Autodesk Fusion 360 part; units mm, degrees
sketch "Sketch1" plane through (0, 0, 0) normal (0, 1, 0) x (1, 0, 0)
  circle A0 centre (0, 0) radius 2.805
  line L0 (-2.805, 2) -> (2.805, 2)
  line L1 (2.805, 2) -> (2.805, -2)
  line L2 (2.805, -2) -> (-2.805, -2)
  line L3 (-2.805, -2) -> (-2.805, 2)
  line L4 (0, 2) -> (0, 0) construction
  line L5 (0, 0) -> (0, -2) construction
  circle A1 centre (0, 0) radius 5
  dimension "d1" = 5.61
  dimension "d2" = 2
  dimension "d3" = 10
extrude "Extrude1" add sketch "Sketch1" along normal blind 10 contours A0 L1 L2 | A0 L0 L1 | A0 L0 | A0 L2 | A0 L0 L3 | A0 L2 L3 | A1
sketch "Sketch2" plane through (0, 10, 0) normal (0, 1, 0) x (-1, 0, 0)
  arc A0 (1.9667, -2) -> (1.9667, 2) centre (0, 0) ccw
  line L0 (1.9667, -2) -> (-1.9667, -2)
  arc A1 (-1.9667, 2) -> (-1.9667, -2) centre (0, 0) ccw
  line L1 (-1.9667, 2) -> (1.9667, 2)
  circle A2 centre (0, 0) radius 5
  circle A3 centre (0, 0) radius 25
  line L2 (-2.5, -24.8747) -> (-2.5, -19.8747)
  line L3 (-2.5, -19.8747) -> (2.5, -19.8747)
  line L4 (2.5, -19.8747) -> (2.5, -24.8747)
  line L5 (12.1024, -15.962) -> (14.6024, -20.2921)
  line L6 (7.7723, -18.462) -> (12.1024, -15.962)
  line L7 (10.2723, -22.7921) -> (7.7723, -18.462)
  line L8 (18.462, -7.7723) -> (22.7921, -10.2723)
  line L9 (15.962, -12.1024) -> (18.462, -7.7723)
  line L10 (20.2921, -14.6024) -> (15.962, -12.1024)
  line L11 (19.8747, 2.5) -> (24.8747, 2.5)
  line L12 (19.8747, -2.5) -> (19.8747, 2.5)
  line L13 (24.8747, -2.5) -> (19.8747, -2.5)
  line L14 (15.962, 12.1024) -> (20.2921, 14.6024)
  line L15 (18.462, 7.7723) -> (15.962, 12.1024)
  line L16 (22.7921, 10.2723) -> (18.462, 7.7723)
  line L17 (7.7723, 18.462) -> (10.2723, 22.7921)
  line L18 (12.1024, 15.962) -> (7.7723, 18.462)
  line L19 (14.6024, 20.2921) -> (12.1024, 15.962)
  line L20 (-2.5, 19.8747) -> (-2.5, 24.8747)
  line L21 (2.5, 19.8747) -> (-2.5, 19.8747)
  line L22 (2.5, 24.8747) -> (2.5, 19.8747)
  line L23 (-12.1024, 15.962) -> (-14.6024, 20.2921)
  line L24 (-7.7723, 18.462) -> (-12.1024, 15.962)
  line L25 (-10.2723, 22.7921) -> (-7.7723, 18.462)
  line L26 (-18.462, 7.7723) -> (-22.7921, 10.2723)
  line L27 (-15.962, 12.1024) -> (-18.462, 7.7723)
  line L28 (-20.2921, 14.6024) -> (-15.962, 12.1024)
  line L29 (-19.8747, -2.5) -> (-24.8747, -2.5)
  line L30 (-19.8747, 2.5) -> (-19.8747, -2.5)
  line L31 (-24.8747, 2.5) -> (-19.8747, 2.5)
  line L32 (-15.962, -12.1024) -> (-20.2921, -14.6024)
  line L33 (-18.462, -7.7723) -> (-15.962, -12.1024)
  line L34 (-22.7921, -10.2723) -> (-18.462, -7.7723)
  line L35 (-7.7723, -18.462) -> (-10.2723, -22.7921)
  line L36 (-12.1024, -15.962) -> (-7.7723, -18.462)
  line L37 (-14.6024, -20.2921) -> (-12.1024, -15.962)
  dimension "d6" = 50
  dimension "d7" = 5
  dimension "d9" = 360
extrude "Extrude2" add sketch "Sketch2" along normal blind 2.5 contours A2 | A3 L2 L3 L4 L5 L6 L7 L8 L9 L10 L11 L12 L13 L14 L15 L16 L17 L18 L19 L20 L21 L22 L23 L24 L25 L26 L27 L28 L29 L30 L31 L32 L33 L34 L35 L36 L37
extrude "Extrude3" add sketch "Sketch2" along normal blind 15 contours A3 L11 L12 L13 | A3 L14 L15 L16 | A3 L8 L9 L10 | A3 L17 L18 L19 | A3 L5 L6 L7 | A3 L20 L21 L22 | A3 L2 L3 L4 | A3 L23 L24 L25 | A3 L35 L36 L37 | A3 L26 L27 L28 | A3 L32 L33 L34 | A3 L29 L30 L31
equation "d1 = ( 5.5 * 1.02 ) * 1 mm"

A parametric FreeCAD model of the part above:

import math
import FreeCAD as App
import Part
import Sketcher
Q = App.Units.Quantity

doc = App.newDocument("Part")
body = doc.addObject("PartDesign::Body", "Body")

# Sketch on XZ plane
sketch1 = body.newObject("Sketcher::SketchObject", "Sketch")
sketch1.AttachmentSupport = (doc.getObject("XZ_Plane"), [""])
sketch1.MapMode = "FlatFace"
sketch1.addGeometry([
    Part.Circle(App.Vector(0, 0, 0), App.Vector(0, 0, 1), 5),  # 0
    Part.LineSegment(App.Vector(2, 2, 0), App.Vector(-2, 2, 0)),  # 1
    Part.ArcOfCircle(Part.Circle(App.Vector(0, 0, 0), App.Vector(0, 0, 1), 2.8), math.radians(135), math.radians(225)),  # 2
    Part.LineSegment(App.Vector(-2, -2, 0), App.Vector(2, -2, 0)),  # 3
    Part.ArcOfCircle(Part.Circle(App.Vector(0, 0, 0), App.Vector(0, 0, 1), 2.8), math.radians(-45), math.radians(45)),  # 4
], False)
sketch1.addConstraint([
    Sketcher.Constraint("Coincident", 1, 2, 2, 1),
    Sketcher.Constraint("Coincident", 2, 2, 3, 1),
    Sketcher.Constraint("Coincident", 3, 2, 4, 1),
    Sketcher.Constraint("Coincident", 4, 2, 1, 1),
    Sketcher.Constraint("Horizontal", 1),
    Sketcher.Constraint("Horizontal", 3),
    Sketcher.Constraint("Coincident", 0, 3, -1, 1),
    Sketcher.Constraint("Coincident", 2, 3, -1, 1),
    Sketcher.Constraint("Coincident", 4, 3, -1, 1),
    Sketcher.Constraint("Equal", 2, 4),
    Sketcher.Constraint("Vertical", 1, 2, 2, 2),
    Sketcher.Constraint("Diameter", 0, Q("10 mm")),
    Sketcher.Constraint("DistanceY", -1, 1, 1, 2, Q("2 mm")),
    Sketcher.Constraint("Radius", 2, Q("2.805 mm")),
])
pad1 = body.newObject("PartDesign::Pad", "Pad")
pad1.Profile = sketch1
pad1.Length = 10
pad1.Reversed = True

# Sketch on XZ plane
sketch2 = body.newObject("Sketcher::SketchObject", "Sketch001")
sketch2.AttachmentSupport = (doc.getObject("XZ_Plane"), [""])
sketch2.MapMode = "FlatFace"
sketch2.AttachmentOffset = App.Placement(App.Vector(0, 0, -10), App.Rotation())
sketch2.addGeometry([
    Part.LineSegment(App.Vector(-19.9, 2.5, 0), App.Vector(-24.9, 2.5, 0)),  # 0
    Part.ArcOfCircle(Part.Circle(App.Vector(0, 0, 0), App.Vector(0, 0, 1), 25), math.radians(155.74), math.radians(174.26)),  # 1
    Part.LineSegment(App.Vector(-22.8, 10.3, 0), App.Vector(-18.5, 7.8, 0)),  # 2
    Part.LineSegment(App.Vector(-18.5, 7.8, 0), App.Vector(-16, 12.1, 0)),  # 3
    Part.LineSegment(App.Vector(-16, 12.1, 0), App.Vector(-20.3, 14.6, 0)),  # 4
    Part.ArcOfCircle(Part.Circle(App.Vector(0, 0, 0), App.Vector(0, 0, 1), 25), math.radians(125.74), math.radians(144.26)),  # 5
    Part.LineSegment(App.Vector(-14.6, 20.3, 0), App.Vector(-12.1, 16, 0)),  # 6
    Part.LineSegment(App.Vector(-12.1, 16, 0), App.Vector(-7.8, 18.5, 0)),  # 7
    Part.LineSegment(App.Vector(-7.8, 18.5, 0), App.Vector(-10.3, 22.8, 0)),  # 8
    Part.ArcOfCircle(Part.Circle(App.Vector(0, 0, 0), App.Vector(0, 0, 1), 25), math.radians(95.74), math.radians(114.26)),  # 9
    Part.LineSegment(App.Vector(-2.5, 24.9, 0), App.Vector(-2.5, 19.9, 0)),  # 10
    Part.LineSegment(App.Vector(-2.5, 19.9, 0), App.Vector(2.5, 19.9, 0)),  # 11
    Part.LineSegment(App.Vector(2.5, 19.9, 0), App.Vector(2.5, 24.9, 0)),  # 12
    Part.ArcOfCircle(Part.Circle(App.Vector(0, 0, 0), App.Vector(0, 0, 1), 25), math.radians(65.74), math.radians(84.26)),  # 13
    Part.LineSegment(App.Vector(10.3, 22.8, 0), App.Vector(7.8, 18.5, 0)),  # 14
    Part.LineSegment(App.Vector(7.8, 18.5, 0), App.Vector(12.1, 16, 0)),  # 15
    Part.LineSegment(App.Vector(12.1, 16, 0), App.Vector(14.6, 20.3, 0)),  # 16
    Part.ArcOfCircle(Part.Circle(App.Vector(0, 0, 0), App.Vector(0, 0, 1), 25), math.radians(35.74), math.radians(54.26)),  # 17
    Part.LineSegment(App.Vector(20.3, 14.6, 0), App.Vector(16, 12.1, 0)),  # 18
    Part.LineSegment(App.Vector(16, 12.1, 0), App.Vector(18.5, 7.8, 0)),  # 19
    Part.LineSegment(App.Vector(18.5, 7.8, 0), App.Vector(22.8, 10.3, 0)),  # 20
    Part.ArcOfCircle(Part.Circle(App.Vector(0, 0, 0), App.Vector(0, 0, 1), 25), math.radians(5.74), math.radians(24.26)),  # 21
    Part.LineSegment(App.Vector(24.9, 2.5, 0), App.Vector(19.9, 2.5, 0)),  # 22
    Part.LineSegment(App.Vector(19.9, 2.5, 0), App.Vector(19.9, -2.5, 0)),  # 23
    Part.LineSegment(App.Vector(19.9, -2.5, 0), App.Vector(24.9, -2.5, 0)),  # 24
    Part.ArcOfCircle(Part.Circle(App.Vector(0, 0, 0), App.Vector(0, 0, 1), 25), math.radians(-24.26), math.radians(-5.74)),  # 25
    Part.LineSegment(App.Vector(22.8, -10.3, 0), App.Vector(18.5, -7.8, 0)),  # 26
    Part.LineSegment(App.Vector(18.5, -7.8, 0), App.Vector(16, -12.1, 0)),  # 27
    Part.LineSegment(App.Vector(16, -12.1, 0), App.Vector(20.3, -14.6, 0)),  # 28
    Part.ArcOfCircle(Part.Circle(App.Vector(0, 0, 0), App.Vector(0, 0, 1), 25), math.radians(-54.26), math.radians(-35.74)),  # 29
    Part.LineSegment(App.Vector(14.6, -20.3, 0), App.Vector(12.1, -16, 0)),  # 30
    Part.LineSegment(App.Vector(12.1, -16, 0), App.Vector(7.8, -18.5, 0)),  # 31
    Part.LineSegment(App.Vector(7.8, -18.5, 0), App.Vector(10.3, -22.8, 0)),  # 32
    Part.ArcOfCircle(Part.Circle(App.Vector(0, 0, 0), App.Vector(0, 0, 1), 25), math.radians(-84.26), math.radians(-65.74)),  # 33
    Part.LineSegment(App.Vector(2.5, -24.9, 0), App.Vector(2.5, -19.9, 0)),  # 34
    Part.LineSegment(App.Vector(2.5, -19.9, 0), App.Vector(-2.5, -19.9, 0)),  # 35
    Part.LineSegment(App.Vector(-2.5, -19.9, 0), App.Vector(-2.5, -24.9, 0)),  # 36
    Part.ArcOfCircle(Part.Circle(App.Vector(0, 0, 0), App.Vector(0, 0, 1), 25), math.radians(-114.26), math.radians(-95.74)),  # 37
    Part.LineSegment(App.Vector(-10.3, -22.8, 0), App.Vector(-7.8, -18.5, 0)),  # 38
    Part.LineSegment(App.Vector(-7.8, -18.5, 0), App.Vector(-12.1, -16, 0)),  # 39
    Part.LineSegment(App.Vector(-12.1, -16, 0), App.Vector(-14.6, -20.3, 0)),  # 40
    Part.ArcOfCircle(Part.Circle(App.Vector(0, 0, 0), App.Vector(0, 0, 1), 25), math.radians(-144.26), math.radians(-125.74)),  # 41
    Part.LineSegment(App.Vector(-20.3, -14.6, 0), App.Vector(-16, -12.1, 0)),  # 42
    Part.LineSegment(App.Vector(-16, -12.1, 0), App.Vector(-18.5, -7.8, 0)),  # 43
    Part.LineSegment(App.Vector(-18.5, -7.8, 0), App.Vector(-22.8, -10.3, 0)),  # 44
    Part.ArcOfCircle(Part.Circle(App.Vector(0, 0, 0), App.Vector(0, 0, 1), 25), math.radians(-174.26), math.radians(-155.74)),  # 45
    Part.LineSegment(App.Vector(-24.9, -2.5, 0), App.Vector(-19.9, -2.5, 0)),  # 46
    Part.LineSegment(App.Vector(-19.9, -2.5, 0), App.Vector(-19.9, 2.5, 0)),  # 47
    Part.ArcOfCircle(Part.Circle(App.Vector(0, 0, 0), App.Vector(0, 0, 1), 2.8), math.radians(135), math.radians(225)),  # 48
    Part.LineSegment(App.Vector(-2, -2, 0), App.Vector(2, -2, 0)),  # 49
    Part.ArcOfCircle(Part.Circle(App.Vector(0, 0, 0), App.Vector(0, 0, 1), 2.8), math.radians(-45), math.radians(45)),  # 50
    Part.LineSegment(App.Vector(2, 2, 0), App.Vector(-2, 2, 0)),  # 51
], False)
sketch2.addConstraint([
    Sketcher.Constraint("Coincident", 0, 2, 1, 2),
    Sketcher.Constraint("Coincident", 1, 1, 2, 1),
    Sketcher.Constraint("Coincident", 2, 2, 3, 1),
    Sketcher.Constraint("Coincident", 3, 2, 4, 1),
    Sketcher.Constraint("Coincident", 4, 2, 5, 2),
    Sketcher.Constraint("Coincident", 5, 1, 6, 1),
    Sketcher.Constraint("Coincident", 6, 2, 7, 1),
    Sketcher.Constraint("Coincident", 7, 2, 8, 1),
    Sketcher.Constraint("Coincident", 8, 2, 9, 2),
    Sketcher.Constraint("Coincident", 9, 1, 10, 1),
    Sketcher.Constraint("Coincident", 10, 2, 11, 1),
    Sketcher.Constraint("Coincident", 11, 2, 12, 1),
    Sketcher.Constraint("Coincident", 12, 2, 13, 2),
    Sketcher.Constraint("Coincident", 13, 1, 14, 1),
    Sketcher.Constraint("Coincident", 14, 2, 15, 1),
    Sketcher.Constraint("Coincident", 15, 2, 16, 1),
    Sketcher.Constraint("Coincident", 16, 2, 17, 2),
    Sketcher.Constraint("Coincident", 17, 1, 18, 1),
    Sketcher.Constraint("Coincident", 18, 2, 19, 1),
    Sketcher.Constraint("Coincident", 19, 2, 20, 1),
    Sketcher.Constraint("Coincident", 20, 2, 21, 2),
    Sketcher.Constraint("Coincident", 21, 1, 22, 1),
    Sketcher.Constraint("Coincident", 22, 2, 23, 1),
    Sketcher.Constraint("Coincident", 23, 2, 24, 1),
    Sketcher.Constraint("Coincident", 24, 2, 25, 2),
    Sketcher.Constraint("Coincident", 25, 1, 26, 1),
    Sketcher.Constraint("Coincident", 26, 2, 27, 1),
    Sketcher.Constraint("Coincident", 27, 2, 28, 1),
    Sketcher.Constraint("Coincident", 28, 2, 29, 2),
    Sketcher.Constraint("Coincident", 29, 1, 30, 1),
    Sketcher.Constraint("Coincident", 30, 2, 31, 1),
    Sketcher.Constraint("Coincident", 31, 2, 32, 1),
    Sketcher.Constraint("Coincident", 32, 2, 33, 2),
    Sketcher.Constraint("Coincident", 33, 1, 34, 1),
    Sketcher.Constraint("Coincident", 34, 2, 35, 1),
    Sketcher.Constraint("Coincident", 35, 2, 36, 1),
    Sketcher.Constraint("Coincident", 36, 2, 37, 2),
    Sketcher.Constraint("Coincident", 37, 1, 38, 1),
    Sketcher.Constraint("Coincident", 38, 2, 39, 1),
    Sketcher.Constraint("Coincident", 39, 2, 40, 1),
    Sketcher.Constraint("Coincident", 40, 2, 41, 2),
    Sketcher.Constraint("Coincident", 41, 1, 42, 1),
    Sketcher.Constraint("Coincident", 42, 2, 43, 1),
    Sketcher.Constraint("Coincident", 43, 2, 44, 1),
    Sketcher.Constraint("Coincident", 44, 2, 45, 2),
    Sketcher.Constraint("Coincident", 45, 1, 46, 1),
    Sketcher.Constraint("Coincident", 46, 2, 47, 1),
    Sketcher.Constraint("Coincident", 47, 2, 0, 1),
    Sketcher.Constraint("Coincident", 48, 2, 49, 1),
    Sketcher.Constraint("Coincident", 49, 2, 50, 1),
    Sketcher.Constraint("Coincident", 50, 2, 51, 1),
    Sketcher.Constraint("Coincident", 51, 2, 48, 1),
    Sketcher.Constraint("Horizontal", 0),
    Sketcher.Constraint("Vertical", 10),
    Sketcher.Constraint("Horizontal", 11),
    Sketcher.Constraint("Vertical", 12),
    Sketcher.Constraint("Horizontal", 22),
    Sketcher.Constraint("Vertical", 23),
    Sketcher.Constraint("Horizontal", 24),
    Sketcher.Constraint("Vertical", 34),
    Sketcher.Constraint("Horizontal", 35),
    Sketcher.Constraint("Vertical", 36),
    Sketcher.Constraint("Horizontal", 46),
    Sketcher.Constraint("Vertical", 47),
    Sketcher.Constraint("Horizontal", 49),
    Sketcher.Constraint("Horizontal", 51),
    Sketcher.Constraint("Coincident", 1, 3, -1, 1),
    Sketcher.Constraint("Coincident", 5, 3, -1, 1),
    Sketcher.Constraint("Coincident", 9, 3, -1, 1),
    Sketcher.Constraint("Coincident", 13, 3, -1, 1),
    Sketcher.Constraint("Coincident", 17, 3, -1, 1),
    Sketcher.Constraint("Coincident", 21, 3, -1, 1),
    Sketcher.Constraint("Coincident", 25, 3, -1, 1),
    Sketcher.Constraint("Coincident", 29, 3, -1, 1),
    Sketcher.Constraint("Coincident", 33, 3, -1, 1),
    Sketcher.Constraint("Coincident", 37, 3, -1, 1),
    Sketcher.Constraint("Coincident", 41, 3, -1, 1),
    Sketcher.Constraint("Coincident", 45, 3, -1, 1),
    Sketcher.Constraint("Coincident", 48, 3, -1, 1),
    Sketcher.Constraint("Coincident", 50, 3, -1, 1),
    Sketcher.Constraint("Equal", 1, 5),
    Sketcher.Constraint("Equal", 5, 9),
    Sketcher.Constraint("Equal", 9, 13),
    Sketcher.Constraint("Equal", 13, 17),
    Sketcher.Constraint("Equal", 17, 21),
    Sketcher.Constraint("Equal", 21, 25),
    Sketcher.Constraint("Equal", 25, 29),
    Sketcher.Constraint("Equal", 29, 33),
    Sketcher.Constraint("Equal", 33, 37),
    Sketcher.Constraint("Equal", 37, 41),
    Sketcher.Constraint("Equal", 41, 45),
    Sketcher.Constraint("Equal", 48, 50),
    Sketcher.Constraint("Symmetric", 2, 2, 26, 2, -1, 1),
    Sketcher.Constraint("Symmetric", 3, 2, 27, 2, -1, 1),
    Sketcher.Constraint("Symmetric", 6, 2, 30, 2, -1, 1),
    Sketcher.Constraint("Symmetric", 7, 2, 31, 2, -1, 1),
    Sketcher.Constraint("Symmetric", 10, 2, 34, 2, -1, 1),
    Sketcher.Constraint("Symmetric", 14, 2, 38, 2, -1, 1),
    Sketcher.Constraint("Symmetric", 15, 2, 39, 2, -1, 1),
    Sketcher.Constraint("Symmetric", 18, 2, 42, 2, -1, 1),
    Sketcher.Constraint("Symmetric", 19, 2, 43, 2, -1, 1),
    Sketcher.Constraint("Symmetric", 22, 2, 46, 2, -1, 1),
    Sketcher.Constraint("Symmetric", 7, 2, 14, 2, -2),
    Sketcher.Constraint("Symmetric", 6, 2, 15, 2, -2),
    Sketcher.Constraint("Symmetric", 3, 2, 18, 2, -2),
    Sketcher.Constraint("Symmetric", 2, 2, 19, 2, -2),
    Sketcher.Constraint("Perpendicular", 2, 3),
    Sketcher.Constraint("Perpendicular", 3, 4),
    Sketcher.Constraint("Perpendicular", 6, 7),
    Sketcher.Constraint("Perpendicular", 7, 8),
    Sketcher.Constraint("Perpendicular", 4, 14),
    Sketcher.Constraint("Perpendicular", 14, 15),
    Sketcher.Constraint("Perpendicular", 15, 16),
    Sketcher.Constraint("Perpendicular", 8, 18),
    Sketcher.Constraint("Perpendicular", 19, 20),
    Sketcher.Constraint("Perpendicular", 16, 26),
    Sketcher.Constraint("Perpendicular", 27, 28),
    Sketcher.Constraint("Perpendicular", 20, 30),
    Sketcher.Constraint("Perpendicular", 31, 32),
    Sketcher.Constraint("Perpendicular", 28, 38),
    Sketcher.Constraint("Perpendicular", 39, 40),
    Sketcher.Constraint("Perpendicular", 32, 42),
    Sketcher.Constraint("Perpendicular", 43, 44),
    Sketcher.Constraint("Horizontal", 9, 1, 12, 2),
    Sketcher.Constraint("Horizontal", 0, 2, 21, 1),
    Sketcher.Constraint("Horizontal", 33, 1, 36, 2),
    Sketcher.Constraint("Horizontal", 24, 2, 45, 1),
    Sketcher.Constraint("Vertical", 49, 2, 50, 2),
    Sketcher.Constraint("Equal", 0, 11),
    Sketcher.Constraint("Equal", 46, 10),
    Sketcher.Constraint("Equal", 12, 23),
    Sketcher.Constraint("Equal", 2, 3),
    Sketcher.Constraint("Equal", 3, 4),
    Sketcher.Constraint("Equal", 4, 6),
    Sketcher.Constraint("Equal", 6, 7),
    Sketcher.Constraint("Equal", 7, 8),
    Sketcher.Constraint("Radius", 1, Q("25 mm")),
    Sketcher.Constraint("DistanceX", 0, 2, 0, 1, Q("5 mm")),
    Sketcher.Constraint("Distance", 2, Q("5 mm")),
    Sketcher.Constraint("Angle", 2, Q("-30.0002 deg")),
    Sketcher.Constraint("DistanceY", 48, 2, -1, 1, Q("2 mm")),
    Sketcher.Constraint("Radius", 48, Q("2.805 mm")),
])
pad2 = body.newObject("PartDesign::Pad", "Pad001")
pad2.Profile = sketch2
pad2.Length = 2.5
pad2.Reversed = True

# Sketch on XZ plane
sketch3 = body.newObject("Sketcher::SketchObject", "Sketch002")
sketch3.AttachmentSupport = (doc.getObject("XZ_Plane"), [""])
sketch3.MapMode = "FlatFace"
sketch3.AttachmentOffset = App.Placement(App.Vector(0, 0, -10), App.Rotation())
sketch3.addGeometry([
    Part.ArcOfCircle(Part.Circle(App.Vector(0, 0, 0), App.Vector(0, 0, 1), 25), math.radians(174.26), math.radians(185.74)),  # 0
    Part.LineSegment(App.Vector(-24.9, 2.5, 0), App.Vector(-19.9, 2.5, 0)),  # 1
    Part.LineSegment(App.Vector(-19.9, 2.5, 0), App.Vector(-19.9, -2.5, 0)),  # 2
    Part.LineSegment(App.Vector(-19.9, -2.5, 0), App.Vector(-24.9, -2.5, 0)),  # 3
    Part.LineSegment(App.Vector(-18.5, 7.8, 0), App.Vector(-22.8, 10.3, 0)),  # 4
    Part.ArcOfCircle(Part.Circle(App.Vector(0, 0, 0), App.Vector(0, 0, 1), 25), math.radians(144.26), math.radians(155.74)),  # 5
    Part.LineSegment(App.Vector(-20.3, 14.6, 0), App.Vector(-16, 12.1, 0)),  # 6
    Part.LineSegment(App.Vector(-16, 12.1, 0), App.Vector(-18.5, 7.8, 0)),  # 7
    Part.ArcOfCircle(Part.Circle(App.Vector(0, 0, 0), App.Vector(0, 0, 1), 25), math.radians(-155.74), math.radians(-144.26)),  # 8
    Part.LineSegment(App.Vector(-22.8, -10.3, 0), App.Vector(-18.5, -7.8, 0)),  # 9
    Part.LineSegment(App.Vector(-18.5, -7.8, 0), App.Vector(-16, -12.1, 0)),  # 10
    Part.LineSegment(App.Vector(-16, -12.1, 0), App.Vector(-20.3, -14.6, 0)),  # 11
    Part.LineSegment(App.Vector(-12.1, 16, 0), App.Vector(-14.6, 20.3, 0)),  # 12
    Part.ArcOfCircle(Part.Circle(App.Vector(0, 0, 0), App.Vector(0, 0, 1), 25), math.radians(114.26), math.radians(125.74)),  # 13
    Part.LineSegment(App.Vector(-10.3, 22.8, 0), App.Vector(-7.8, 18.5, 0)),  # 14
    Part.LineSegment(App.Vector(-7.8, 18.5, 0), App.Vector(-12.1, 16, 0)),  # 15
    Part.ArcOfCircle(Part.Circle(App.Vector(0, 0, 0), App.Vector(0, 0, 1), 25), math.radians(-125.74), math.radians(-114.26)),  # 16
    Part.LineSegment(App.Vector(-14.6, -20.3, 0), App.Vector(-12.1, -16, 0)),  # 17
    Part.LineSegment(App.Vector(-12.1, -16, 0), App.Vector(-7.8, -18.5, 0)),  # 18
    Part.LineSegment(App.Vector(-7.8, -18.5, 0), App.Vector(-10.3, -22.8, 0)),  # 19
    Part.LineSegment(App.Vector(-2.5, 19.9, 0), App.Vector(-2.5, 24.9, 0)),  # 20
    Part.ArcOfCircle(Part.Circle(App.Vector(0, 0, 0), App.Vector(0, 0, 1), 25), math.radians(84.26), math.radians(95.74)),  # 21
    Part.LineSegment(App.Vector(2.5, 24.9, 0), App.Vector(2.5, 19.9, 0)),  # 22
    Part.LineSegment(App.Vector(2.5, 19.9, 0), App.Vector(-2.5, 19.9, 0)),  # 23
    Part.ArcOfCircle(Part.Circle(App.Vector(0, 0, 0), App.Vector(0, 0, 1), 25), math.radians(-95.74), math.radians(-84.26)),  # 24
    Part.LineSegment(App.Vector(-2.5, -24.9, 0), App.Vector(-2.5, -19.9, 0)),  # 25
    Part.LineSegment(App.Vector(-2.5, -19.9, 0), App.Vector(2.5, -19.9, 0)),  # 26
    Part.LineSegment(App.Vector(2.5, -19.9, 0), App.Vector(2.5, -24.9, 0)),  # 27
    Part.LineSegment(App.Vector(7.8, 18.5, 0), App.Vector(10.3, 22.8, 0)),  # 28
    Part.ArcOfCircle(Part.Circle(App.Vector(0, 0, 0), App.Vector(0, 0, 1), 25), math.radians(54.26), math.radians(65.74)),  # 29
    Part.LineSegment(App.Vector(14.6, 20.3, 0), App.Vector(12.1, 16, 0)),  # 30
    Part.LineSegment(App.Vector(12.1, 16, 0), App.Vector(7.8, 18.5, 0)),  # 31
    Part.ArcOfCircle(Part.Circle(App.Vector(0, 0, 0), App.Vector(0, 0, 1), 25), math.radians(-65.74), math.radians(-54.26)),  # 32
    Part.LineSegment(App.Vector(10.3, -22.8, 0), App.Vector(7.8, -18.5, 0)),  # 33
    Part.LineSegment(App.Vector(7.8, -18.5, 0), App.Vector(12.1, -16, 0)),  # 34
    Part.LineSegment(App.Vector(12.1, -16, 0), App.Vector(14.6, -20.3, 0)),  # 35
    Part.LineSegment(App.Vector(16, 12.1, 0), App.Vector(20.3, 14.6, 0)),  # 36
    Part.ArcOfCircle(Part.Circle(App.Vector(0, 0, 0), App.Vector(0, 0, 1), 25), math.radians(24.26), math.radians(35.74)),  # 37
    Part.LineSegment(App.Vector(22.8, 10.3, 0), App.Vector(18.5, 7.8, 0)),  # 38
    Part.LineSegment(App.Vector(18.5, 7.8, 0), App.Vector(16, 12.1, 0)),  # 39
    Part.ArcOfCircle(Part.Circle(App.Vector(0, 0, 0), App.Vector(0, 0, 1), 25), math.radians(-35.74), math.radians(-24.26)),  # 40
    Part.LineSegment(App.Vector(20.3, -14.6, 0), App.Vector(16, -12.1, 0)),  # 41
    Part.LineSegment(App.Vector(16, -12.1, 0), App.Vector(18.5, -7.8, 0)),  # 42
    Part.LineSegment(App.Vector(18.5, -7.8, 0), App.Vector(22.8, -10.3, 0)),  # 43
    Part.LineSegment(App.Vector(19.9, 2.5, 0), App.Vector(24.9, 2.5, 0)),  # 44
    Part.ArcOfCircle(Part.Circle(App.Vector(0, 0, 0), App.Vector(0, 0, 1), 25), math.radians(-5.74), math.radians(5.74)),  # 45
    Part.LineSegment(App.Vector(24.9, -2.5, 0), App.Vector(19.9, -2.5, 0)),  # 46
    Part.LineSegment(App.Vector(19.9, -2.5, 0), App.Vector(19.9, 2.5, 0)),  # 47
], False)
sketch3.addConstraint([
    Sketcher.Constraint("Coincident", 0, 1, 1, 1),
    Sketcher.Constraint("Coincident", 1, 2, 2, 1),
    Sketcher.Constraint("Coincident", 2, 2, 3, 1),
    Sketcher.Constraint("Coincident", 3, 2, 0, 2),
    Sketcher.Constraint("Coincident", 4, 2, 5, 2),
    Sketcher.Constraint("Coincident", 5, 1, 6, 1),
    Sketcher.Constraint("Coincident", 6, 2, 7, 1),
    Sketcher.Constraint("Coincident", 7, 2, 4, 1),
    Sketcher.Constraint("Coincident", 8, 1, 9, 1),
    Sketcher.Constraint("Coincident", 9, 2, 10, 1),
    Sketcher.Constraint("Coincident", 10, 2, 11, 1),
    Sketcher.Constraint("Coincident", 11, 2, 8, 2),
    Sketcher.Constraint("Coincident", 12, 2, 13, 2),
    Sketcher.Constraint("Coincident", 13, 1, 14, 1),
    Sketcher.Constraint("Coincident", 14, 2, 15, 1),
    Sketcher.Constraint("Coincident", 15, 2, 12, 1),
    Sketcher.Constraint("Coincident", 16, 1, 17, 1),
    Sketcher.Constraint("Coincident", 17, 2, 18, 1),
    Sketcher.Constraint("Coincident", 18, 2, 19, 1),
    Sketcher.Constraint("Coincident", 19, 2, 16, 2),
    Sketcher.Constraint("Coincident", 20, 2, 21, 2),
    Sketcher.Constraint("Coincident", 21, 1, 22, 1),
    Sketcher.Constraint("Coincident", 22, 2, 23, 1),
    Sketcher.Constraint("Coincident", 23, 2, 20, 1),
    Sketcher.Constraint("Coincident", 24, 1, 25, 1),
    Sketcher.Constraint("Coincident", 25, 2, 26, 1),
    Sketcher.Constraint("Coincident", 26, 2, 27, 1),
    Sketcher.Constraint("Coincident", 27, 2, 24, 2),
    Sketcher.Constraint("Coincident", 28, 2, 29, 2),
    Sketcher.Constraint("Coincident", 29, 1, 30, 1),
    Sketcher.Constraint("Coincident", 30, 2, 31, 1),
    Sketcher.Constraint("Coincident", 31, 2, 28, 1),
    Sketcher.Constraint("Coincident", 32, 1, 33, 1),
    Sketcher.Constraint("Coincident", 33, 2, 34, 1),
    Sketcher.Constraint("Coincident", 34, 2, 35, 1),
    Sketcher.Constraint("Coincident", 35, 2, 32, 2),
    Sketcher.Constraint("Coincident", 36, 2, 37, 2),
    Sketcher.Constraint("Coincident", 37, 1, 38, 1),
    Sketcher.Constraint("Coincident", 38, 2, 39, 1),
    Sketcher.Constraint("Coincident", 39, 2, 36, 1),
    Sketcher.Constraint("Coincident", 40, 1, 41, 1),
    Sketcher.Constraint("Coincident", 41, 2, 42, 1),
    Sketcher.Constraint("Coincident", 42, 2, 43, 1),
    Sketcher.Constraint("Coincident", 43, 2, 40, 2),
    Sketcher.Constraint("Coincident", 44, 2, 45, 2),
    Sketcher.Constraint("Coincident", 45, 1, 46, 1),
    Sketcher.Constraint("Coincident", 46, 2, 47, 1),
    Sketcher.Constraint("Coincident", 47, 2, 44, 1),
    Sketcher.Constraint("Horizontal", 1),
    Sketcher.Constraint("Vertical", 2),
    Sketcher.Constraint("Horizontal", 3),
    Sketcher.Constraint("Vertical", 20),
    Sketcher.Constraint("Vertical", 22),
    Sketcher.Constraint("Horizontal", 23),
    Sketcher.Constraint("Vertical", 25),
    Sketcher.Constraint("Horizontal", 26),
    Sketcher.Constraint("Vertical", 27),
    Sketcher.Constraint("Horizontal", 44),
    Sketcher.Constraint("Horizontal", 46),
    Sketcher.Constraint("Vertical", 47),
    Sketcher.Constraint("Coincident", 0, 3, -1, 1),
    Sketcher.Constraint("Coincident", 5, 3, -1, 1),
    Sketcher.Constraint("Coincident", 8, 3, -1, 1),
    Sketcher.Constraint("Coincident", 13, 3, -1, 1),
    Sketcher.Constraint("Coincident", 16, 3, -1, 1),
    Sketcher.Constraint("Coincident", 21, 3, -1, 1),
    Sketcher.Constraint("Coincident", 24, 3, -1, 1),
    Sketcher.Constraint("Coincident", 29, 3, -1, 1),
    Sketcher.Constraint("Coincident", 32, 3, -1, 1),
    Sketcher.Constraint("Coincident", 37, 3, -1, 1),
    Sketcher.Constraint("Coincident", 40, 3, -1, 1),
    Sketcher.Constraint("Coincident", 45, 3, -1, 1),
    Sketcher.Constraint("Equal", 0, 5),
    Sketcher.Constraint("Equal", 5, 8),
    Sketcher.Constraint("Equal", 8, 13),
    Sketcher.Constraint("Equal", 13, 16),
    Sketcher.Constraint("Equal", 16, 21),
    Sketcher.Constraint("Equal", 21, 24),
    Sketcher.Constraint("Equal", 24, 29),
    Sketcher.Constraint("Equal", 29, 32),
    Sketcher.Constraint("Equal", 32, 37),
    Sketcher.Constraint("Equal", 37, 40),
    Sketcher.Constraint("Equal", 40, 45),
    Sketcher.Constraint("Symmetric", 22, 2, 25, 2, -1, 1),
    Sketcher.Constraint("Symmetric", 17, 2, 30, 2, -1, 1),
    Sketcher.Constraint("Symmetric", 18, 2, 31, 2, -1, 1),
    Sketcher.Constraint("Symmetric", 14, 2, 33, 2, -1, 1),
    Sketcher.Constraint("Symmetric", 15, 2, 34, 2, -1, 1),
    Sketcher.Constraint("Symmetric", 9, 2, 38, 2, -1, 1),
    Sketcher.Constraint("Symmetric", 10, 2, 39, 2, -1, 1),
    Sketcher.Constraint("Symmetric", 6, 2, 41, 2, -1, 1),
    Sketcher.Constraint("Symmetric", 7, 2, 42, 2, -1, 1),
    Sketcher.Constraint("Symmetric", 1, 2, 46, 2, -1, 1),
    Sketcher.Constraint("Symmetric", 15, 2, 30, 2, -2),
    Sketcher.Constraint("Symmetric", 14, 2, 31, 2, -2),
    Sketcher.Constraint("Symmetric", 7, 2, 38, 2, -2),
    Sketcher.Constraint("Symmetric", 6, 2, 39, 2, -2),
    Sketcher.Constraint("Parallel", 4, 6),
    Sketcher.Constraint("Perpendicular", 6, 7),
    Sketcher.Constraint("Perpendicular", 9, 10),
    Sketcher.Constraint("Perpendicular", 10, 11),
    Sketcher.Constraint("Perpendicular", 11, 12),
    Sketcher.Constraint("Parallel", 12, 14),
    Sketcher.Constraint("Perpendicular", 14, 15),
    Sketcher.Constraint("Parallel", 7, 17),
    Sketcher.Constraint("Perpendicular", 18, 19),
    Sketcher.Constraint("Parallel", 19, 28),
    Sketcher.Constraint("Parallel", 28, 30),
    Sketcher.Constraint("Perpendicular", 15, 33),
    Sketcher.Constraint("Perpendicular", 34, 35),
    Sketcher.Constraint("Perpendicular", 35, 36),
    Sketcher.Constraint("Parallel", 36, 38),
    Sketcher.Constraint("Parallel", 31, 41),
    Sketcher.Constraint("Perpendicular", 42, 43),
    Sketcher.Constraint("Horizontal", 20, 2, 21, 1),
    Sketcher.Constraint("Horizontal", 24, 1, 27, 2),
    Sketcher.Constraint("Horizontal", 1, 2, 44, 2),
    Sketcher.Constraint("Horizontal", 3, 2, 45, 1),
    Sketcher.Constraint("Equal", 3, 23),
    Sketcher.Constraint("Equal", 46, 2),
    Sketcher.Constraint("Equal", 2, 20),
    Sketcher.Constraint("Equal", 4, 6),
    Sketcher.Constraint("Equal", 6, 7),
    Sketcher.Constraint("Equal", 11, 12),
    Sketcher.Constraint("Equal", 12, 14),
    Sketcher.Constraint("Equal", 14, 15),
    Sketcher.Constraint("Radius", 0, Q("25 mm")),
    Sketcher.Constraint("DistanceX", 1, 1, 1, 2, Q("5 mm")),
    Sketcher.Constraint("Distance", 4, Q("5 mm")),
    Sketcher.Constraint("Angle", 4, Q("149.9998 deg")),
])
pad3 = body.newObject("PartDesign::Pad", "Pad002")
pad3.Profile = sketch3
pad3.Length = 15
pad3.Reversed = True

doc.recompute()
